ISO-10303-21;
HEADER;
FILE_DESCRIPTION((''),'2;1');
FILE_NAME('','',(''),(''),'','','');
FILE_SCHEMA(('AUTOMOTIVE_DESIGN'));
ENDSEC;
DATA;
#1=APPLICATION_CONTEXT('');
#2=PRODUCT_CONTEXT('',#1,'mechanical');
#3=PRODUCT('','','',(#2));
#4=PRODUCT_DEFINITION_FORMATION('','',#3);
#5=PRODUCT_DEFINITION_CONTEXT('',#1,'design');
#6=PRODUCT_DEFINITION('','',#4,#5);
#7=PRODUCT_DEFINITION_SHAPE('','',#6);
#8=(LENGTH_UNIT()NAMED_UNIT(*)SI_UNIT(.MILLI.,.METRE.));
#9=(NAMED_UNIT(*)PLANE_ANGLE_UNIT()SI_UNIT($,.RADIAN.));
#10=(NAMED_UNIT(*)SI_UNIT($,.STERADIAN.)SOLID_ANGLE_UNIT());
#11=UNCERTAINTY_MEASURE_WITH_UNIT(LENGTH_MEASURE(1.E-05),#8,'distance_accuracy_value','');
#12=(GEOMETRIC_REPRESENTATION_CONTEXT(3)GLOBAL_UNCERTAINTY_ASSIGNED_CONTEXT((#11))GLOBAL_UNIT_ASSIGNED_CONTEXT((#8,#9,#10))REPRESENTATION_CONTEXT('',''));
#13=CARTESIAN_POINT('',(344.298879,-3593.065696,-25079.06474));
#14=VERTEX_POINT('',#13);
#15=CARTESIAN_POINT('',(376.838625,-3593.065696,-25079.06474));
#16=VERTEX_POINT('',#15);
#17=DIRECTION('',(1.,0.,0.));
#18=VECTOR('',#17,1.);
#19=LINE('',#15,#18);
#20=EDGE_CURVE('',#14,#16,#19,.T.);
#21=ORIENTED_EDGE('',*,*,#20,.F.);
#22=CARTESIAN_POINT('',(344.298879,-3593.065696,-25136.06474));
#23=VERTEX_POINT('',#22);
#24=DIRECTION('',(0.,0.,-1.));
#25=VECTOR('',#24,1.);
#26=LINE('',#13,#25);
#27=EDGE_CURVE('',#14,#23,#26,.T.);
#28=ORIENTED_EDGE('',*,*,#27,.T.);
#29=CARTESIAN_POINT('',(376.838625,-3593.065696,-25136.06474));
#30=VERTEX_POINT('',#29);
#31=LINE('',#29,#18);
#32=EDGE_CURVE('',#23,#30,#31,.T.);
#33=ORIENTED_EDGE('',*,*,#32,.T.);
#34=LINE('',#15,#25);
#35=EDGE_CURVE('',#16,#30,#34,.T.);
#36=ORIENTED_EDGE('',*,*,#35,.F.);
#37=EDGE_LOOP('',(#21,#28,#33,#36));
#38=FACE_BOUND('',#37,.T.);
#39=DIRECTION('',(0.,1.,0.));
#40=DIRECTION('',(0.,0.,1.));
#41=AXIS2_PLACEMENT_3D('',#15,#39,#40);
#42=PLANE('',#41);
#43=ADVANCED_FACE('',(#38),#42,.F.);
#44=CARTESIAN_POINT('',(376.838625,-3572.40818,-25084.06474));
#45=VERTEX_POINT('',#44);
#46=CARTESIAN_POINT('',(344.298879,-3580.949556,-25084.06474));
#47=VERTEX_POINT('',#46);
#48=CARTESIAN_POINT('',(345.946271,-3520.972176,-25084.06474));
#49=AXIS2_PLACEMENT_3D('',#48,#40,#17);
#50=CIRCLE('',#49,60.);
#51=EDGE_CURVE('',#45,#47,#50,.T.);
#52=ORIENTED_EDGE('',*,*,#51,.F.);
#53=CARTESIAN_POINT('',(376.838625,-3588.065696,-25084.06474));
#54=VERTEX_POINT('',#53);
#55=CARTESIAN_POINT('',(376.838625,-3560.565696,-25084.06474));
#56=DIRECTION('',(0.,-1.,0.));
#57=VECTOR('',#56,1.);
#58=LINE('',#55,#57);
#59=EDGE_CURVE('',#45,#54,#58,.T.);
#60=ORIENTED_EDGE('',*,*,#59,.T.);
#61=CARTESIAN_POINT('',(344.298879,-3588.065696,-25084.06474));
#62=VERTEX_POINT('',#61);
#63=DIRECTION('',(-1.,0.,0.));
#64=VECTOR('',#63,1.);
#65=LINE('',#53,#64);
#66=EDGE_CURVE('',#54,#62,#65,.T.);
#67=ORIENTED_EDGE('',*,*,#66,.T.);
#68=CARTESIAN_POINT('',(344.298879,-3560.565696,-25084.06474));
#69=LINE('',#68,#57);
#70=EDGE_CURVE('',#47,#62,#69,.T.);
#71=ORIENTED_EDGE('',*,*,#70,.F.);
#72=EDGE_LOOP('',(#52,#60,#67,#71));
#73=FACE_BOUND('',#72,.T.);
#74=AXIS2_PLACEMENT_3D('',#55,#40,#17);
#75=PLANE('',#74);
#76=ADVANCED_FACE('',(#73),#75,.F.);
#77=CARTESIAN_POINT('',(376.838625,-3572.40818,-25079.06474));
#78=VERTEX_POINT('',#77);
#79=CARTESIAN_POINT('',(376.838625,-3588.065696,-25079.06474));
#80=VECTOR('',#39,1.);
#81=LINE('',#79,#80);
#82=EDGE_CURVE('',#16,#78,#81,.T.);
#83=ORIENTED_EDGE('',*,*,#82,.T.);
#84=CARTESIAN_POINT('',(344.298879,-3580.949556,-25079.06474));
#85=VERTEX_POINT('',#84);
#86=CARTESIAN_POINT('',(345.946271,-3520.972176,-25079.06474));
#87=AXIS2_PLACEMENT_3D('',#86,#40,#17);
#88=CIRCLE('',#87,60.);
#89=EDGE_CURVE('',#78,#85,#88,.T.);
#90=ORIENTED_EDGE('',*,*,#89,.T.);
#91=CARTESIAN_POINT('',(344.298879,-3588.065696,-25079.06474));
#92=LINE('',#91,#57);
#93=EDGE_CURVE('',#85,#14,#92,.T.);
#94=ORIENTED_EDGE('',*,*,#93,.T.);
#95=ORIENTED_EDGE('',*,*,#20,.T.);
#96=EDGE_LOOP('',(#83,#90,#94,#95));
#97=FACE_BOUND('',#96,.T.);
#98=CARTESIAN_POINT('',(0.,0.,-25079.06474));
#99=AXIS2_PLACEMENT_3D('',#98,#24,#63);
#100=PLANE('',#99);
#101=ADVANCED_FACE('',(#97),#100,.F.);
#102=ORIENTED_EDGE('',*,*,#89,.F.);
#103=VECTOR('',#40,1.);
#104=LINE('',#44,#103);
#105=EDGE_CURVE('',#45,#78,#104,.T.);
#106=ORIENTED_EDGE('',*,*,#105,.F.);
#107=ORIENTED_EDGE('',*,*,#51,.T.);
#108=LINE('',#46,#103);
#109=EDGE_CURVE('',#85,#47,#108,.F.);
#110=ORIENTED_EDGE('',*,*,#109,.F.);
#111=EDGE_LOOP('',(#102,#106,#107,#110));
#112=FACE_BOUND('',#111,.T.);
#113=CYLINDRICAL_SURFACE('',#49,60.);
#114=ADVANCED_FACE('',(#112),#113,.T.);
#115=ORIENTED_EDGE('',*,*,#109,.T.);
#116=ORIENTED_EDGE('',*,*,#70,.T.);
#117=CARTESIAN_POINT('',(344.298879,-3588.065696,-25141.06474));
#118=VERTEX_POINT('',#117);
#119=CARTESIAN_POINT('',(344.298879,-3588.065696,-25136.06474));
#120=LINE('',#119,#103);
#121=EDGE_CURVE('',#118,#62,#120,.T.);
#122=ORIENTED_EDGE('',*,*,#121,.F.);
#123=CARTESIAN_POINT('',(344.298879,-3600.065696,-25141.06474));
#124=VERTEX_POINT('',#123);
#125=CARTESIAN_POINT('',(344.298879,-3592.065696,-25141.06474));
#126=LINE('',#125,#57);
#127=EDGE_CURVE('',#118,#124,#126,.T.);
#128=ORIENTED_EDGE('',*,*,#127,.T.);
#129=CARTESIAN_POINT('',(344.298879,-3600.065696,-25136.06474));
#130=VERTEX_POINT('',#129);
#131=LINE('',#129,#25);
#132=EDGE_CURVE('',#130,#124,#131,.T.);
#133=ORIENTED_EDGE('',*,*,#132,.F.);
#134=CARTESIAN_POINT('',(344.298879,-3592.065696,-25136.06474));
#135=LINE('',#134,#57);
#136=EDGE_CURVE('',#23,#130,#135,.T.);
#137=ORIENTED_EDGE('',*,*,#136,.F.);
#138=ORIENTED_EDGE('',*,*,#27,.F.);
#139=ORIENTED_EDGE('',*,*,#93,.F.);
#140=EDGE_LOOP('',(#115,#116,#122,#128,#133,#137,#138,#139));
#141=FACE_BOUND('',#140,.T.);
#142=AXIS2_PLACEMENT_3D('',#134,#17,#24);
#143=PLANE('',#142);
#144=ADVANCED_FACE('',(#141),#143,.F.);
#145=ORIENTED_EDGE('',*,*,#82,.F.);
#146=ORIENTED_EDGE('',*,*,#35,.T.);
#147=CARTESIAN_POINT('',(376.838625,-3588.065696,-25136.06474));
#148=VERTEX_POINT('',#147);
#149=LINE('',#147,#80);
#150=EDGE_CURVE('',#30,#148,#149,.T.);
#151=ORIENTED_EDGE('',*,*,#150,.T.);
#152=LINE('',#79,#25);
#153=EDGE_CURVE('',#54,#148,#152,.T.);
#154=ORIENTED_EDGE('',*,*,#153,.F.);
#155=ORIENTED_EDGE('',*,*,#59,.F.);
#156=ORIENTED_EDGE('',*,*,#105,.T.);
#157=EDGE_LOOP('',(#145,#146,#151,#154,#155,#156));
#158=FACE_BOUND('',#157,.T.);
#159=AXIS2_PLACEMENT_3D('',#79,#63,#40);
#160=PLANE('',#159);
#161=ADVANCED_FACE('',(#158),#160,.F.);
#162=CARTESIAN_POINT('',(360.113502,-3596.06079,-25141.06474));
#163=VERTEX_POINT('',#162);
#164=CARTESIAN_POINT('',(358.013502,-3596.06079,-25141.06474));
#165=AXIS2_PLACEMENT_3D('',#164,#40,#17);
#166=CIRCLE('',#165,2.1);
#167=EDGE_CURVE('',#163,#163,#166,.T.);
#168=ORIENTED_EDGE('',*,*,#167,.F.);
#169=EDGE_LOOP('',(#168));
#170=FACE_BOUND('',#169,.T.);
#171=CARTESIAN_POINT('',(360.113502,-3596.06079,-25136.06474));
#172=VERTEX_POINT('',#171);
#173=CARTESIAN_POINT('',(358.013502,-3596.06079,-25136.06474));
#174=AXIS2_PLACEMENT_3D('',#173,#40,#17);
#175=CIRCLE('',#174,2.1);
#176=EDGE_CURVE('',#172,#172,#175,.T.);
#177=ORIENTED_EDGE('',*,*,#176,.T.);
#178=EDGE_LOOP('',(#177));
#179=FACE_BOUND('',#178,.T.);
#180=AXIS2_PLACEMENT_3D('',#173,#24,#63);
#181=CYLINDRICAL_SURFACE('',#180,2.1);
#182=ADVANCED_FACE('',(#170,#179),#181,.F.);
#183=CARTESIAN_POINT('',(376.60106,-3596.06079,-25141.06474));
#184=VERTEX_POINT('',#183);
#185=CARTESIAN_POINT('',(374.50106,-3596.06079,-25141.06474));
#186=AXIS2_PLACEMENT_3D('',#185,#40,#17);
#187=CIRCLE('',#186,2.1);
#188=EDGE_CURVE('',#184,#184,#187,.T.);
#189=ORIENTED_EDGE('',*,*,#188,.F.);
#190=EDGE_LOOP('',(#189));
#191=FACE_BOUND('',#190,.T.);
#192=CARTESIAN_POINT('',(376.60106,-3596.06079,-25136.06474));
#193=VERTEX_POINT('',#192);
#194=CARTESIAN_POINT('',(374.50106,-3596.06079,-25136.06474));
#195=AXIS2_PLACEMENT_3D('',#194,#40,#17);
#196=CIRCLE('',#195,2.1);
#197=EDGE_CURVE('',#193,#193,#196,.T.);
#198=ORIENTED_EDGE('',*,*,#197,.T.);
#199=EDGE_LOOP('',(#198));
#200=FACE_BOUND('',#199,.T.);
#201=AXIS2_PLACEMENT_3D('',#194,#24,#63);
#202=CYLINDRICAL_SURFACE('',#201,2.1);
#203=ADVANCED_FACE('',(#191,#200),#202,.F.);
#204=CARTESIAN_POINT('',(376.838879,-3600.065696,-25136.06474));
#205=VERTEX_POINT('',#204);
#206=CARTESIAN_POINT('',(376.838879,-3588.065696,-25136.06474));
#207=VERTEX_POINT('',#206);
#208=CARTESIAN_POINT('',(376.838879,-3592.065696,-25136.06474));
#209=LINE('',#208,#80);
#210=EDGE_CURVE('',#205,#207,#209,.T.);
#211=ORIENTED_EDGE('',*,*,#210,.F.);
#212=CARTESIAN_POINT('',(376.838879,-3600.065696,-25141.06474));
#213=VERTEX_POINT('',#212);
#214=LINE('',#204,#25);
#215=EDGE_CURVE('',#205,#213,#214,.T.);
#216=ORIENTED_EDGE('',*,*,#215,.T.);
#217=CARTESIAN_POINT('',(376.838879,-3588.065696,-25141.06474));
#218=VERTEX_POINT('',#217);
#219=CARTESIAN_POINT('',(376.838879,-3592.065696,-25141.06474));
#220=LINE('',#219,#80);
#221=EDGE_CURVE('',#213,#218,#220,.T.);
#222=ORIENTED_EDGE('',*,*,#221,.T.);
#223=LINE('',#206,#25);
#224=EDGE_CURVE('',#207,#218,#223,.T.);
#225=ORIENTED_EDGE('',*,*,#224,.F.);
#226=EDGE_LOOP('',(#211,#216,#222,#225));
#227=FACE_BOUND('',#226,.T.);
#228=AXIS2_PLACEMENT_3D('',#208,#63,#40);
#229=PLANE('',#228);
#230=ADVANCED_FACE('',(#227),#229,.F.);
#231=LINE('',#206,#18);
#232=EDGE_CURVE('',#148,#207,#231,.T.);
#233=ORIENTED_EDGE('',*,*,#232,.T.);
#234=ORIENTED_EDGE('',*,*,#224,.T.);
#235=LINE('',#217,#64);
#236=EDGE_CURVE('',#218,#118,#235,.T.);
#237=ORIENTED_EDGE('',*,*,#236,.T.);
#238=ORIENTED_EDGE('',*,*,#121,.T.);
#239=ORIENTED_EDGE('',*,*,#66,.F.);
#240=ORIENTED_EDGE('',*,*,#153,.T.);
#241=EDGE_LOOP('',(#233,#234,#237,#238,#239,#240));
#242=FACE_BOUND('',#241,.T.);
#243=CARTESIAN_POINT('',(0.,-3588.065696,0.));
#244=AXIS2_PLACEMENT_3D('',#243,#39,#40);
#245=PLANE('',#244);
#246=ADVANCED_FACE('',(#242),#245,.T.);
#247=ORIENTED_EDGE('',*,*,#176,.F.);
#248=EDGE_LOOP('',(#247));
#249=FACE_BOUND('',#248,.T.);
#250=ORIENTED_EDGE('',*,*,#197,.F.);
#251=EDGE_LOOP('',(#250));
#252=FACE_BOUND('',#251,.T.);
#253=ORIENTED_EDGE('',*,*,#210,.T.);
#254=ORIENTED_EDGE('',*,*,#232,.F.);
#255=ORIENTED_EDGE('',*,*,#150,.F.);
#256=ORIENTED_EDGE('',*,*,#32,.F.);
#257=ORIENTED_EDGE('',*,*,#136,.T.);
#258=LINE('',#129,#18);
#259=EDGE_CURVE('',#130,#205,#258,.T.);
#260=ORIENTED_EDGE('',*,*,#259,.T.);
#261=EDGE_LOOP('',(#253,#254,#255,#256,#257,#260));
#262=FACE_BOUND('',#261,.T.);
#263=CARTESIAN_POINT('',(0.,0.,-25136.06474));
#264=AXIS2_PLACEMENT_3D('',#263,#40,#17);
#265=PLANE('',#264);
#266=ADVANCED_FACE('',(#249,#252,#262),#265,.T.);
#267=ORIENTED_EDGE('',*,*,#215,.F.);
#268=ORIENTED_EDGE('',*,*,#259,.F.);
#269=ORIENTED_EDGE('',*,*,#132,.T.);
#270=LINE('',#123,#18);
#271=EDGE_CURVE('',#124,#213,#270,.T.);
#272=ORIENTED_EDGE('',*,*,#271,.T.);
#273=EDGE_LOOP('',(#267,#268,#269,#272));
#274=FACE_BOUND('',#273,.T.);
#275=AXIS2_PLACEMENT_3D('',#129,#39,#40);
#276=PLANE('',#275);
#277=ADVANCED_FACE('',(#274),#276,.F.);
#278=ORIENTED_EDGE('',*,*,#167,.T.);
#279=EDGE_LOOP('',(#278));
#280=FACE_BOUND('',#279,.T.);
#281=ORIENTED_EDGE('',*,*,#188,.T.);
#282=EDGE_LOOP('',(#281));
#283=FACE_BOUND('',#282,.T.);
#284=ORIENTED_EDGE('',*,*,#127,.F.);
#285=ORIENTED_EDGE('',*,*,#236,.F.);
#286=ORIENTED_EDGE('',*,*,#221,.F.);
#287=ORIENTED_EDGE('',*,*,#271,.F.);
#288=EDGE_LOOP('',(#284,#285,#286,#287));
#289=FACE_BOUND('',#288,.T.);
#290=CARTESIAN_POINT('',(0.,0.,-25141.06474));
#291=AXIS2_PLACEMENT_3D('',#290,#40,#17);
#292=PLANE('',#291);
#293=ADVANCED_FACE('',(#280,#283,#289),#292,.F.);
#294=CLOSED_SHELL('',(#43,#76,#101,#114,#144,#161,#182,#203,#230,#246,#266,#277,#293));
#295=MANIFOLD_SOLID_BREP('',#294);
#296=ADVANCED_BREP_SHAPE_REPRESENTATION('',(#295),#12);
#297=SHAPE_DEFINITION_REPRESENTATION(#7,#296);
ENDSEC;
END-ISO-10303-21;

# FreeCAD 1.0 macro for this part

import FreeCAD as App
import Part
import Sketcher


def add_polygon(sketch, points):
    """Adds a closed chain of lines whose ends are joined by coincident constraints."""
    first, n = sketch.GeometryCount, len(points)
    for a, b in zip(points, points[1:] + points[:1]):
        sketch.addGeometry(Part.LineSegment(App.Vector(*a, 0), App.Vector(*b, 0)), False)
    for i in range(n):
        sketch.addConstraint(Sketcher.Constraint("Coincident", first + i, 2, first + (i + 1) % n, 1))

doc = App.newDocument("Part")
body = doc.addObject("PartDesign::Body", "Body")

sketch1 = doc.addObject("Sketcher::SketchObject", "Sketch")
body.addObject(sketch1)
sketch1.AttachmentSupport = (doc.XY_Plane, [""])
sketch1.MapMode = "FlatFace"
sketch1.AttachmentOffset = App.Placement(App.Vector(0, 0, -25141.06474), App.Rotation())
add_polygon(sketch1, [(344.3, -3592.1), (344.3, -3600.1), (376.8, -3600.1), (376.8, -3592.1)])
sketch1.addGeometry(Part.Circle(App.Vector(358, -3596.1, 0), App.Vector(0, 0, 1), 2.1), False)
sketch1.addGeometry(Part.Circle(App.Vector(374.5, -3596.1, 0), App.Vector(0, 0, 1), 2.1), False)
sketch1.addConstraint(Sketcher.Constraint("Vertical", 0))
sketch1.addConstraint(Sketcher.Constraint("Horizontal", 1))
sketch1.addConstraint(Sketcher.Constraint("Vertical", 2))
sketch1.addConstraint(Sketcher.Constraint("Horizontal", 3))
sketch1.addConstraint(Sketcher.Constraint("Equal", 4, 5))
sketch1.addConstraint(Sketcher.Constraint("Horizontal", 4, 3, 5, 3))
sketch1.addConstraint(Sketcher.Constraint("Diameter", 4, 4.2))
sketch1.addConstraint(Sketcher.Constraint("DistanceY", 0, 2, 0, 1, 8.0))
sketch1.addConstraint(Sketcher.Constraint("DistanceX", 1, 1, 1, 2, 32.54))
sketch1.addConstraint(Sketcher.Constraint("DistanceY", 4, 3, -1, 1, 3596.06079))
sketch1.addConstraint(Sketcher.Constraint("DistanceX", -1, 1, 5, 3, 374.50106))
sketch1.addConstraint(Sketcher.Constraint("DistanceX", -1, 1, 0, 2, 344.298879))
sketch1.addConstraint(Sketcher.Constraint("DistanceX", 4, 3, 5, 3, 16.487558))
sketch1.addConstraint(Sketcher.Constraint("DistanceY", 0, 2, -1, 1, 3600.065696))
pad1 = doc.addObject("PartDesign::Pad", "Pad")
body.addObject(pad1)
pad1.Profile = sketch1
pad1.Length = 5

sketch2 = doc.addObject("Sketcher::SketchObject", "Sketch001")
body.addObject(sketch2)
sketch2.AttachmentSupport = (doc.XZ_Plane, [""])
sketch2.MapMode = "FlatFace"
sketch2.AttachmentOffset = App.Placement(App.Vector(0, 0, 3592.065696), App.Rotation())
add_polygon(sketch2, [(344, -25141), (344, -25136), (377, -25136), (377, -25141)])
sketch2.addConstraint(Sketcher.Constraint("Vertical", 0))
sketch2.addConstraint(Sketcher.Constraint("Horizontal", 1))
sketch2.addConstraint(Sketcher.Constraint("Vertical", 2))
sketch2.addConstraint(Sketcher.Constraint("Horizontal", 3))
sketch2.addConstraint(Sketcher.Constraint("DistanceY", 0, 1, 0, 2, 5.0))
sketch2.addConstraint(Sketcher.Constraint("DistanceX", 1, 1, 1, 2, 32.54))
sketch2.addConstraint(Sketcher.Constraint("DistanceX", -1, 1, 0, 2, 344.298879))
sketch2.addConstraint(Sketcher.Constraint("DistanceY", 0, 2, -1, 1, 25136.06474))
pad2 = doc.addObject("PartDesign::Pad", "Pad001")
body.addObject(pad2)
pad2.Profile = sketch2
pad2.Length = 4
pad2.Reversed = True

sketch3 = doc.addObject("Sketcher::SketchObject", "Sketch002")
body.addObject(sketch3)
sketch3.AttachmentSupport = (doc.XY_Plane, [""])
sketch3.MapMode = "FlatFace"
sketch3.AttachmentOffset = App.Placement(App.Vector(0, 0, -25136.06474), App.Rotation())
add_polygon(sketch3, [(344, -3588), (344, -3593), (377, -3593), (377, -3588)])
sketch3.addConstraint(Sketcher.Constraint("Vertical", 0))
sketch3.addConstraint(Sketcher.Constraint("Horizontal", 1))
sketch3.addConstraint(Sketcher.Constraint("Vertical", 2))
sketch3.addConstraint(Sketcher.Constraint("Horizontal", 3))
sketch3.addConstraint(Sketcher.Constraint("DistanceY", 0, 2, 0, 1, 5.0))
sketch3.addConstraint(Sketcher.Constraint("DistanceX", 1, 1, 1, 2, 32.539746))
sketch3.addConstraint(Sketcher.Constraint("DistanceX", -1, 1, 0, 2, 344.298879))
sketch3.addConstraint(Sketcher.Constraint("DistanceY", 0, 2, -1, 1, 3593.065696))
pad3 = doc.addObject("PartDesign::Pad", "Pad002")
body.addObject(pad3)
pad3.Profile = sketch3
pad3.Length = 57

sketch4 = doc.addObject("Sketcher::SketchObject", "Sketch003")
body.addObject(sketch4)
sketch4.AttachmentSupport = (doc.XZ_Plane, [""])
sketch4.MapMode = "FlatFace"
sketch4.AttachmentOffset = App.Placement(App.Vector(0, 0, 3588.065696), App.Rotation())
add_polygon(sketch4, [(344, -25084), (344, -25079), (377, -25079), (377, -25084)])
sketch4.addConstraint(Sketcher.Constraint("Vertical", 0))
sketch4.addConstraint(Sketcher.Constraint("Horizontal", 1))
sketch4.addConstraint(Sketcher.Constraint("Vertical", 2))
sketch4.addConstraint(Sketcher.Constraint("Horizontal", 3))
sketch4.addConstraint(Sketcher.Constraint("DistanceY", 0, 1, 0, 2, 5.0))
sketch4.addConstraint(Sketcher.Constraint("DistanceX", 1, 1, 1, 2, 32.539746))
sketch4.addConstraint(Sketcher.Constraint("DistanceX", -1, 1, 0, 2, 344.298879))
sketch4.addConstraint(Sketcher.Constraint("DistanceY", 0, 2, -1, 1, 25079.06474))
pad4 = doc.addObject("PartDesign::Pad", "Pad003")
body.addObject(pad4)
pad4.Profile = sketch4
pad4.Length = 27.5
pad4.Reversed = True

sketch5 = doc.addObject("Sketcher::SketchObject", "Sketch004")
body.addObject(sketch5)
sketch5.AttachmentSupport = (doc.XY_Plane, [""])
sketch5.MapMode = "FlatFace"
sketch5.AttachmentOffset = App.Placement(App.Vector(0, 0, -25079.06474), App.Rotation())
sketch5.addGeometry(Part.Circle(App.Vector(346, -3521, 0), App.Vector(0, 0, 1), 60), False)
sketch5.addConstraint(Sketcher.Constraint("Diameter", 0, 120.0))
sketch5.addConstraint(Sketcher.Constraint("DistanceX", -1, 1, 0, 3, 345.946271))
sketch5.addConstraint(Sketcher.Constraint("DistanceY", 0, 3, -1, 1, 3520.972176))
pad5 = doc.addObject("PartDesign::Pad", "Pad004")
body.addObject(pad5)
pad5.Profile = sketch5
pad5.Length = 5
pad5.Reversed = True

doc.recompute()
